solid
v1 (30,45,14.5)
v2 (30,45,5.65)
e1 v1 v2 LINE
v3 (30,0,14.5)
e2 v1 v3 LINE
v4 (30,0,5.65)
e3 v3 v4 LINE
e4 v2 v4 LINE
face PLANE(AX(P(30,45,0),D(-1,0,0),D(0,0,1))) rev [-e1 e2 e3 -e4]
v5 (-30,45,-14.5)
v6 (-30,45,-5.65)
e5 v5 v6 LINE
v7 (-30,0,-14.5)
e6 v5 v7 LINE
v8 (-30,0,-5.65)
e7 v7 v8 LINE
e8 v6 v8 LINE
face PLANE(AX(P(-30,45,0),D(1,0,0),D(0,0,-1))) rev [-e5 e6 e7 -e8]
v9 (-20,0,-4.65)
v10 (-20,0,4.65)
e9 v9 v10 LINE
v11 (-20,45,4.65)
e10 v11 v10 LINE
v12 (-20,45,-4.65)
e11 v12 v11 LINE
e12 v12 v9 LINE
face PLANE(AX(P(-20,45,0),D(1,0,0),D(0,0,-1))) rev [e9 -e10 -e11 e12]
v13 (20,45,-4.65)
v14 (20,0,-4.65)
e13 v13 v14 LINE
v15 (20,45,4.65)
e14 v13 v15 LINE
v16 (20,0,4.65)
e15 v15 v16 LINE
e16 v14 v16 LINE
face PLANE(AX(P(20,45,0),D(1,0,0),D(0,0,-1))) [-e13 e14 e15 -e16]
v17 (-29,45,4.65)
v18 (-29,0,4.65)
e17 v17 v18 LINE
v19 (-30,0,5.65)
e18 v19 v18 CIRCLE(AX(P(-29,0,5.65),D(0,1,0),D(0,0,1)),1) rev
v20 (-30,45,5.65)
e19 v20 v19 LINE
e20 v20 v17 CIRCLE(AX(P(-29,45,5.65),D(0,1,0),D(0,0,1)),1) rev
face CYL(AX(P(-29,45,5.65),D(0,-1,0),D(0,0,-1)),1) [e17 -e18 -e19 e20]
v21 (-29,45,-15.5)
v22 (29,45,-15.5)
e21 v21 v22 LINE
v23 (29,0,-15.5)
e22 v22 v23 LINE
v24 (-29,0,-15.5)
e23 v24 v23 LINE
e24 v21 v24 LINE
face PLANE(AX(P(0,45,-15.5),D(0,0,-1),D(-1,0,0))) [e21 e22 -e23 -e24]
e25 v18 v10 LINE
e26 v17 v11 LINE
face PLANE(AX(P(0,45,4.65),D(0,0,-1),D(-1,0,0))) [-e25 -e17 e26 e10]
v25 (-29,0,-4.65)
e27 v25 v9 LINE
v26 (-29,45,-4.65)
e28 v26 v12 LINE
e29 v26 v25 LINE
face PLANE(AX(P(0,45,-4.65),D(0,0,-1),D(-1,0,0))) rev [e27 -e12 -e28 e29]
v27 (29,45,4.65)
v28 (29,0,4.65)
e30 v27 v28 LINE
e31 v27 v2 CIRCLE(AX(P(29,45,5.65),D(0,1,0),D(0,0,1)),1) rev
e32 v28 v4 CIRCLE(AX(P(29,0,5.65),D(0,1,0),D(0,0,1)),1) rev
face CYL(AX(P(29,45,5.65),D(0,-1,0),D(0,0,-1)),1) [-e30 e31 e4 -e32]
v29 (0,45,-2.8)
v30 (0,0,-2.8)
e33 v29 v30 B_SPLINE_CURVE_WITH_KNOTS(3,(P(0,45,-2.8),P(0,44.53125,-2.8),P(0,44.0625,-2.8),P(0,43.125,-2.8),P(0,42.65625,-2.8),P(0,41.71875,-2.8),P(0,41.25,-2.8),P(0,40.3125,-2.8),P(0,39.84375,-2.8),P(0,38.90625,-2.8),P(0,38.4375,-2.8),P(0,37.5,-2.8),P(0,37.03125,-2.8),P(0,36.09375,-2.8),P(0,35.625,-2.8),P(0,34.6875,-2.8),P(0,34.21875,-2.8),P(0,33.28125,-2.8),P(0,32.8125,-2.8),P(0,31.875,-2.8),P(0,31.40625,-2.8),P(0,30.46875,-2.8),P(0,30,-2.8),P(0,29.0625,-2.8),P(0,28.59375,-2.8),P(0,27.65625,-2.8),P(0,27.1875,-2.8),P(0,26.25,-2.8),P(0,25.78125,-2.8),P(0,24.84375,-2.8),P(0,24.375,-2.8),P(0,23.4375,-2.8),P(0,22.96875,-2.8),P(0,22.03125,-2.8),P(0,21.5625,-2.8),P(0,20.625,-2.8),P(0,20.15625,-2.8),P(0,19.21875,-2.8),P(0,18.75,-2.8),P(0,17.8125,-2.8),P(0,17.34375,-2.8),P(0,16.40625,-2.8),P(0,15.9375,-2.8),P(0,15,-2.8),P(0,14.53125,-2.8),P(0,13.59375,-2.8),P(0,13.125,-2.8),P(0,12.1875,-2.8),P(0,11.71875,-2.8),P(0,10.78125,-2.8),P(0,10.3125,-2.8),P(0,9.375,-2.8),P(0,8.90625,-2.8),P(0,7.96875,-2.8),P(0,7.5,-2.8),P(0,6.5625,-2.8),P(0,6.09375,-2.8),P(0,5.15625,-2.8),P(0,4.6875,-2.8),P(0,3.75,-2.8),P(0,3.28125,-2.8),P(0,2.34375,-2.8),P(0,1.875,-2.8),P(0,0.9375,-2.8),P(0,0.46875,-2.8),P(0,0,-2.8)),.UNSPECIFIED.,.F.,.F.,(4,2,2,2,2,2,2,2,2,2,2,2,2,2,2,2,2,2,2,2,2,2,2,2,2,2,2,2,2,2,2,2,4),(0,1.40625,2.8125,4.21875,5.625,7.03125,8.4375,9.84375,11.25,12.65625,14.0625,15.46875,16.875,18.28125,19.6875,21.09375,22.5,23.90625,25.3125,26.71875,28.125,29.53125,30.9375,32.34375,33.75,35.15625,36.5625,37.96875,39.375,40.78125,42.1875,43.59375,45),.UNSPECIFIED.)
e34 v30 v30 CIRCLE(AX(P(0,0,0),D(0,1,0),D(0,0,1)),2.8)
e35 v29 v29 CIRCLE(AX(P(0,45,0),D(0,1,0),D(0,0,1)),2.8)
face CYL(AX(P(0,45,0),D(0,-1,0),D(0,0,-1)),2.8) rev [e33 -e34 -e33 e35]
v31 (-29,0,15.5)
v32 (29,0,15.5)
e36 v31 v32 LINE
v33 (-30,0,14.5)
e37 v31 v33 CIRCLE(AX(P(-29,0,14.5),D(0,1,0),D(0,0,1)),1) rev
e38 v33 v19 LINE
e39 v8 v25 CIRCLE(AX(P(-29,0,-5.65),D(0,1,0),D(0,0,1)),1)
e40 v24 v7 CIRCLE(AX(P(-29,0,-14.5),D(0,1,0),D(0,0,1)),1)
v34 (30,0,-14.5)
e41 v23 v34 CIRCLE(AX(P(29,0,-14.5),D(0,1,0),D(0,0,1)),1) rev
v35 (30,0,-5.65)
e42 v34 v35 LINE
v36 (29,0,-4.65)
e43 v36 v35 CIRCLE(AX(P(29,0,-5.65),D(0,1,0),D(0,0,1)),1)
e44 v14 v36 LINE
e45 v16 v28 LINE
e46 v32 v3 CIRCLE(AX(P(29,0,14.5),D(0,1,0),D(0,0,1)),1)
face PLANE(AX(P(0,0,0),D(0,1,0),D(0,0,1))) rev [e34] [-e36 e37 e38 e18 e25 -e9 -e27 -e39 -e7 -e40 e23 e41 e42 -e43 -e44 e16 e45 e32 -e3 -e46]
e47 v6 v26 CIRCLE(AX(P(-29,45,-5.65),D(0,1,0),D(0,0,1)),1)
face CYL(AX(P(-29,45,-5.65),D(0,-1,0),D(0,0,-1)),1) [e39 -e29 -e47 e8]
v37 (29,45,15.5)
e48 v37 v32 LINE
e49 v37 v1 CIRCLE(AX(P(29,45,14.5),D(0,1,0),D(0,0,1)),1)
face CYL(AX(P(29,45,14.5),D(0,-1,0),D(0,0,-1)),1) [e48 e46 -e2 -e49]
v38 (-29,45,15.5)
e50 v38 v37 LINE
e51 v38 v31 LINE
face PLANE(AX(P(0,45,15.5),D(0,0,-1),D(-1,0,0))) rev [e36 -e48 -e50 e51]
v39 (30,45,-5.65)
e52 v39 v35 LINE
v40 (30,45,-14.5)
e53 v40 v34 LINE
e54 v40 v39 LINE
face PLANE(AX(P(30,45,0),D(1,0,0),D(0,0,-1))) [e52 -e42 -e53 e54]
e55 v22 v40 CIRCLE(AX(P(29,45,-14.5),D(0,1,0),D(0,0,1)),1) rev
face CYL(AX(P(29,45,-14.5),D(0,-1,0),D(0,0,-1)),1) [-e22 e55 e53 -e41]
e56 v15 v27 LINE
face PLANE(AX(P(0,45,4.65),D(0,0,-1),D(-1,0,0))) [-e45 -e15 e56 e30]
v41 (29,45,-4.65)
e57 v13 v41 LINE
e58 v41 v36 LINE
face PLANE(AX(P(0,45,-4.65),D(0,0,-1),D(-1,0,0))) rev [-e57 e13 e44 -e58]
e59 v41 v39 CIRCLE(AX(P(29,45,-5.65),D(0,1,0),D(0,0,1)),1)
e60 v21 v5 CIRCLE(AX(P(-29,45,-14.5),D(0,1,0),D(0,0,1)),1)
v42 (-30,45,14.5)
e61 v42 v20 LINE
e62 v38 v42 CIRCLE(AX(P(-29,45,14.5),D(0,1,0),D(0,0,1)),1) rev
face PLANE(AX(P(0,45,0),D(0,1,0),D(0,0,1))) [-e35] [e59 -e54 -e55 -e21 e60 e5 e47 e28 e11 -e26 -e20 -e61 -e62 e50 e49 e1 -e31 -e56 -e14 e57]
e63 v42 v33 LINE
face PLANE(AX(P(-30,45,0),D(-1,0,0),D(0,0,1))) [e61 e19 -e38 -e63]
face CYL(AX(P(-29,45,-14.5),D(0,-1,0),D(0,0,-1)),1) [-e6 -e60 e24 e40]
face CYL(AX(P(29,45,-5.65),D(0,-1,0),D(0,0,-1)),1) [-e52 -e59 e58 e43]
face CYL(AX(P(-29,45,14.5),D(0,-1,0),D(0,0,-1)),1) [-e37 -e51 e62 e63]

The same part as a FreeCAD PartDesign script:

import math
import FreeCAD as App
import Part
import Sketcher

V = App.Vector
Q = App.Units.Quantity

doc = App.newDocument("Part")
body = doc.addObject("PartDesign::Body", "Body")

sketch1 = body.newObject("Sketcher::SketchObject", "Sketch")
sketch1.AttachmentSupport = (doc.getObject("XZ_Plane"), [""])
sketch1.MapMode = "FlatFace"
sketch1.addGeometry(Part.LineSegment(V(20, 4.7, 0), V(20, -4.7, 0)), False)
sketch1.addGeometry(Part.LineSegment(V(20, -4.7, 0), V(29, -4.7, 0)), False)
sketch1.addGeometry(Part.ArcOfCircle(Part.Circle(V(29, -5.7, 0), V(0, 0, 1), 1), math.radians(0), math.radians(90)), False)
sketch1.addGeometry(Part.LineSegment(V(30, -5.7, 0), V(30, -14.5, 0)), False)
sketch1.addGeometry(Part.ArcOfCircle(Part.Circle(V(29, -14.5, 0), V(0, 0, 1), 1), math.radians(-90), math.radians(0)), False)
sketch1.addGeometry(Part.LineSegment(V(29, -15.5, 0), V(-29, -15.5, 0)), False)
sketch1.addGeometry(Part.ArcOfCircle(Part.Circle(V(-29, -14.5, 0), V(0, 0, 1), 1), math.radians(-180), math.radians(-90)), False)
sketch1.addGeometry(Part.LineSegment(V(-30, -14.5, 0), V(-30, -5.7, 0)), False)
sketch1.addGeometry(Part.ArcOfCircle(Part.Circle(V(-29, -5.7, 0), V(0, 0, 1), 1), math.radians(90), math.radians(180)), False)
sketch1.addGeometry(Part.LineSegment(V(-29, -4.7, 0), V(-20, -4.7, 0)), False)
sketch1.addGeometry(Part.LineSegment(V(-20, -4.7, 0), V(-20, 4.7, 0)), False)
sketch1.addGeometry(Part.LineSegment(V(-20, 4.7, 0), V(-29, 4.7, 0)), False)
sketch1.addGeometry(Part.ArcOfCircle(Part.Circle(V(-29, 5.7, 0), V(0, 0, 1), 1), math.radians(-180), math.radians(-90)), False)
sketch1.addGeometry(Part.LineSegment(V(-30, 5.7, 0), V(-30, 14.5, 0)), False)
sketch1.addGeometry(Part.ArcOfCircle(Part.Circle(V(-29, 14.5, 0), V(0, 0, 1), 1), math.radians(90), math.radians(180)), False)
sketch1.addGeometry(Part.LineSegment(V(-29, 15.5, 0), V(29, 15.5, 0)), False)
sketch1.addGeometry(Part.ArcOfCircle(Part.Circle(V(29, 14.5, 0), V(0, 0, 1), 1), math.radians(0), math.radians(90)), False)
sketch1.addGeometry(Part.LineSegment(V(30, 14.5, 0), V(30, 5.7, 0)), False)
sketch1.addGeometry(Part.ArcOfCircle(Part.Circle(V(29, 5.7, 0), V(0, 0, 1), 1), math.radians(-90), math.radians(0)), False)
sketch1.addGeometry(Part.LineSegment(V(29, 4.7, 0), V(20, 4.7, 0)), False)
sketch1.addGeometry(Part.Circle(V(0, 0, 0), V(0, 0, 1), 2.8), False)
sketch1.addConstraint(Sketcher.Constraint("Coincident", 0, 2, 1, 1))
sketch1.addConstraint(Sketcher.Constraint("Tangent", 1, 2, 2, 2))
sketch1.addConstraint(Sketcher.Constraint("Tangent", 2, 1, 3, 1))
sketch1.addConstraint(Sketcher.Constraint("Tangent", 3, 2, 4, 2))
sketch1.addConstraint(Sketcher.Constraint("Tangent", 4, 1, 5, 1))
sketch1.addConstraint(Sketcher.Constraint("Tangent", 5, 2, 6, 2))
sketch1.addConstraint(Sketcher.Constraint("Tangent", 6, 1, 7, 1))
sketch1.addConstraint(Sketcher.Constraint("Tangent", 7, 2, 8, 2))
sketch1.addConstraint(Sketcher.Constraint("Tangent", 8, 1, 9, 1))
sketch1.addConstraint(Sketcher.Constraint("Coincident", 9, 2, 10, 1))
sketch1.addConstraint(Sketcher.Constraint("Coincident", 10, 2, 11, 1))
sketch1.addConstraint(Sketcher.Constraint("Tangent", 11, 2, 12, 2))
sketch1.addConstraint(Sketcher.Constraint("Tangent", 12, 1, 13, 1))
sketch1.addConstraint(Sketcher.Constraint("Tangent", 13, 2, 14, 2))
sketch1.addConstraint(Sketcher.Constraint("Tangent", 14, 1, 15, 1))
sketch1.addConstraint(Sketcher.Constraint("Tangent", 15, 2, 16, 2))
sketch1.addConstraint(Sketcher.Constraint("Tangent", 16, 1, 17, 1))
sketch1.addConstraint(Sketcher.Constraint("Tangent", 17, 2, 18, 2))
sketch1.addConstraint(Sketcher.Constraint("Tangent", 18, 1, 19, 1))
sketch1.addConstraint(Sketcher.Constraint("Coincident", 19, 2, 0, 1))
sketch1.addConstraint(Sketcher.Constraint("Vertical", 0))
sketch1.addConstraint(Sketcher.Constraint("Horizontal", 1))
sketch1.addConstraint(Sketcher.Constraint("Vertical", 3))
sketch1.addConstraint(Sketcher.Constraint("Horizontal", 5))
sketch1.addConstraint(Sketcher.Constraint("Vertical", 7))
sketch1.addConstraint(Sketcher.Constraint("Horizontal", 9))
sketch1.addConstraint(Sketcher.Constraint("Vertical", 10))
sketch1.addConstraint(Sketcher.Constraint("Horizontal", 11))
sketch1.addConstraint(Sketcher.Constraint("Vertical", 13))
sketch1.addConstraint(Sketcher.Constraint("Horizontal", 15))
sketch1.addConstraint(Sketcher.Constraint("Vertical", 17))
sketch1.addConstraint(Sketcher.Constraint("Horizontal", 19))
sketch1.addConstraint(Sketcher.Constraint("Coincident", 20, 3, -1, 1))
sketch1.addConstraint(Sketcher.Constraint("Equal", 2, 4))
sketch1.addConstraint(Sketcher.Constraint("Equal", 4, 6))
sketch1.addConstraint(Sketcher.Constraint("Equal", 6, 8))
sketch1.addConstraint(Sketcher.Constraint("Equal", 8, 12))
sketch1.addConstraint(Sketcher.Constraint("Equal", 12, 14))
sketch1.addConstraint(Sketcher.Constraint("Equal", 14, 16))
sketch1.addConstraint(Sketcher.Constraint("Equal", 16, 18))
sketch1.addConstraint(Sketcher.Constraint("Symmetric", 2, 3, 12, 3, -1, 1))
sketch1.addConstraint(Sketcher.Constraint("Symmetric", 6, 3, 16, 3, -1, 1))
sketch1.addConstraint(Sketcher.Constraint("Symmetric", 9, 2, 19, 2, -1, 1))
sketch1.addConstraint(Sketcher.Constraint("Symmetric", 2, 3, 8, 3, -2))
sketch1.addConstraint(Sketcher.Constraint("Radius", 2, Q("1 mm")))
sketch1.addConstraint(Sketcher.Constraint("Diameter", 20, Q("5.6 mm")))
sketch1.addConstraint(Sketcher.Constraint("DistanceX", 1, 1, 1, 2, Q("9 mm")))
sketch1.addConstraint(Sketcher.Constraint("DistanceX", 5, 2, 5, 1, Q("58 mm")))
sketch1.addConstraint(Sketcher.Constraint("DistanceY", 0, 2, 0, 1, Q("9.3 mm")))
sketch1.addConstraint(Sketcher.Constraint("DistanceY", 6, 3, 14, 3, Q("29 mm")))
pad1 = body.newObject("PartDesign::Pad", "Pad")
pad1.Profile = sketch1
pad1.Length = 45
pad1.Reversed = True

doc.recompute()
